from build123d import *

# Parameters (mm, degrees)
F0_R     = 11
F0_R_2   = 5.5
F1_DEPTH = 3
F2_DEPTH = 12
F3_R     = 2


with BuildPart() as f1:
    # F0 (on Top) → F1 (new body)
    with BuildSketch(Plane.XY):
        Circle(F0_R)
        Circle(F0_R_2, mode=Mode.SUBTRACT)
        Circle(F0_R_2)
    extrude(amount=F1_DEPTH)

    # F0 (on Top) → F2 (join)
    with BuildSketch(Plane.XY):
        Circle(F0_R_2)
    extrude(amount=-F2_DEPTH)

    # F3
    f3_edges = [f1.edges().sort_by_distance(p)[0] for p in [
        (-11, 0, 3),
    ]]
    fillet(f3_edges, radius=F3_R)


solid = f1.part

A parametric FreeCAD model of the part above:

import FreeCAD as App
import Part
import Sketcher
from FreeCAD import Vector


def edges_at(feature, points):
    """Names of the edges that pass closest to the given points."""
    edges = feature.Shape.Edges
    near = lambda p: min(range(len(edges)), key=lambda i: edges[i].distToShape(Part.Vertex(*p))[0])
    return sorted({f"Edge{near(p) + 1}" for p in points})

doc = App.newDocument("Part")
params = doc.addObject("Spreadsheet::Sheet", "Params")
for row, (alias, value) in enumerate([
    ("sketch1_diameter", "22 mm"),
    ("pad1_length", "3 mm"),
    ("sketch2_diameter", "11 mm"),
    ("pad2_length", "12 mm"),
    ("fillet_radius", "2 mm"),
], start=1):
    params.set(f"A{row}", alias)
    params.set(f"B{row}", "=" + value)
    params.setAlias(f"B{row}", alias)

body = doc.addObject("PartDesign::Body", "Body")

# Sketch on XY plane
sketch1 = body.newObject("Sketcher::SketchObject", "Sketch")
sketch1.AttachmentSupport = (doc.getObject("XY_Plane"), [""])
sketch1.MapMode = "FlatFace"
sketch1.addGeometry(Part.Circle(Vector(0, 0, 0), Vector(0, 0, 1), 11), False)
sketch1.addConstraint([
    Sketcher.Constraint("Coincident", 0, 3, -1, 1),
    Sketcher.Constraint("Diameter", 0, 22.0),
])
sketch1.setExpression("Constraints[1]", "Params.sketch1_diameter")
pad1 = body.newObject("PartDesign::Pad", "Pad")
pad1.Profile = sketch1
pad1.setExpression("Length", "Params.pad1_length")

# Sketch on XY plane
sketch2 = body.newObject("Sketcher::SketchObject", "Sketch001")
sketch2.AttachmentSupport = (doc.getObject("XY_Plane"), [""])
sketch2.MapMode = "FlatFace"
sketch2.addGeometry(Part.Circle(Vector(0, 0, 0), Vector(0, 0, 1), 6), False)
sketch2.addConstraint([
    Sketcher.Constraint("Coincident", 0, 3, -1, 1),
    Sketcher.Constraint("Diameter", 0, 11.0),
])
sketch2.setExpression("Constraints[1]", "Params.sketch2_diameter")
pad2 = body.newObject("PartDesign::Pad", "Pad001")
pad2.Profile = sketch2
pad2.setExpression("Length", "Params.pad2_length")
pad2.Reversed = True
doc.recompute()

fillet = body.newObject("PartDesign::Fillet", "Fillet")
fillet.Base = (pad2, edges_at(pad2, [(-11, 0, 3)]))
fillet.setExpression("Radius", "Params.fillet_radius")

doc.recompute()
